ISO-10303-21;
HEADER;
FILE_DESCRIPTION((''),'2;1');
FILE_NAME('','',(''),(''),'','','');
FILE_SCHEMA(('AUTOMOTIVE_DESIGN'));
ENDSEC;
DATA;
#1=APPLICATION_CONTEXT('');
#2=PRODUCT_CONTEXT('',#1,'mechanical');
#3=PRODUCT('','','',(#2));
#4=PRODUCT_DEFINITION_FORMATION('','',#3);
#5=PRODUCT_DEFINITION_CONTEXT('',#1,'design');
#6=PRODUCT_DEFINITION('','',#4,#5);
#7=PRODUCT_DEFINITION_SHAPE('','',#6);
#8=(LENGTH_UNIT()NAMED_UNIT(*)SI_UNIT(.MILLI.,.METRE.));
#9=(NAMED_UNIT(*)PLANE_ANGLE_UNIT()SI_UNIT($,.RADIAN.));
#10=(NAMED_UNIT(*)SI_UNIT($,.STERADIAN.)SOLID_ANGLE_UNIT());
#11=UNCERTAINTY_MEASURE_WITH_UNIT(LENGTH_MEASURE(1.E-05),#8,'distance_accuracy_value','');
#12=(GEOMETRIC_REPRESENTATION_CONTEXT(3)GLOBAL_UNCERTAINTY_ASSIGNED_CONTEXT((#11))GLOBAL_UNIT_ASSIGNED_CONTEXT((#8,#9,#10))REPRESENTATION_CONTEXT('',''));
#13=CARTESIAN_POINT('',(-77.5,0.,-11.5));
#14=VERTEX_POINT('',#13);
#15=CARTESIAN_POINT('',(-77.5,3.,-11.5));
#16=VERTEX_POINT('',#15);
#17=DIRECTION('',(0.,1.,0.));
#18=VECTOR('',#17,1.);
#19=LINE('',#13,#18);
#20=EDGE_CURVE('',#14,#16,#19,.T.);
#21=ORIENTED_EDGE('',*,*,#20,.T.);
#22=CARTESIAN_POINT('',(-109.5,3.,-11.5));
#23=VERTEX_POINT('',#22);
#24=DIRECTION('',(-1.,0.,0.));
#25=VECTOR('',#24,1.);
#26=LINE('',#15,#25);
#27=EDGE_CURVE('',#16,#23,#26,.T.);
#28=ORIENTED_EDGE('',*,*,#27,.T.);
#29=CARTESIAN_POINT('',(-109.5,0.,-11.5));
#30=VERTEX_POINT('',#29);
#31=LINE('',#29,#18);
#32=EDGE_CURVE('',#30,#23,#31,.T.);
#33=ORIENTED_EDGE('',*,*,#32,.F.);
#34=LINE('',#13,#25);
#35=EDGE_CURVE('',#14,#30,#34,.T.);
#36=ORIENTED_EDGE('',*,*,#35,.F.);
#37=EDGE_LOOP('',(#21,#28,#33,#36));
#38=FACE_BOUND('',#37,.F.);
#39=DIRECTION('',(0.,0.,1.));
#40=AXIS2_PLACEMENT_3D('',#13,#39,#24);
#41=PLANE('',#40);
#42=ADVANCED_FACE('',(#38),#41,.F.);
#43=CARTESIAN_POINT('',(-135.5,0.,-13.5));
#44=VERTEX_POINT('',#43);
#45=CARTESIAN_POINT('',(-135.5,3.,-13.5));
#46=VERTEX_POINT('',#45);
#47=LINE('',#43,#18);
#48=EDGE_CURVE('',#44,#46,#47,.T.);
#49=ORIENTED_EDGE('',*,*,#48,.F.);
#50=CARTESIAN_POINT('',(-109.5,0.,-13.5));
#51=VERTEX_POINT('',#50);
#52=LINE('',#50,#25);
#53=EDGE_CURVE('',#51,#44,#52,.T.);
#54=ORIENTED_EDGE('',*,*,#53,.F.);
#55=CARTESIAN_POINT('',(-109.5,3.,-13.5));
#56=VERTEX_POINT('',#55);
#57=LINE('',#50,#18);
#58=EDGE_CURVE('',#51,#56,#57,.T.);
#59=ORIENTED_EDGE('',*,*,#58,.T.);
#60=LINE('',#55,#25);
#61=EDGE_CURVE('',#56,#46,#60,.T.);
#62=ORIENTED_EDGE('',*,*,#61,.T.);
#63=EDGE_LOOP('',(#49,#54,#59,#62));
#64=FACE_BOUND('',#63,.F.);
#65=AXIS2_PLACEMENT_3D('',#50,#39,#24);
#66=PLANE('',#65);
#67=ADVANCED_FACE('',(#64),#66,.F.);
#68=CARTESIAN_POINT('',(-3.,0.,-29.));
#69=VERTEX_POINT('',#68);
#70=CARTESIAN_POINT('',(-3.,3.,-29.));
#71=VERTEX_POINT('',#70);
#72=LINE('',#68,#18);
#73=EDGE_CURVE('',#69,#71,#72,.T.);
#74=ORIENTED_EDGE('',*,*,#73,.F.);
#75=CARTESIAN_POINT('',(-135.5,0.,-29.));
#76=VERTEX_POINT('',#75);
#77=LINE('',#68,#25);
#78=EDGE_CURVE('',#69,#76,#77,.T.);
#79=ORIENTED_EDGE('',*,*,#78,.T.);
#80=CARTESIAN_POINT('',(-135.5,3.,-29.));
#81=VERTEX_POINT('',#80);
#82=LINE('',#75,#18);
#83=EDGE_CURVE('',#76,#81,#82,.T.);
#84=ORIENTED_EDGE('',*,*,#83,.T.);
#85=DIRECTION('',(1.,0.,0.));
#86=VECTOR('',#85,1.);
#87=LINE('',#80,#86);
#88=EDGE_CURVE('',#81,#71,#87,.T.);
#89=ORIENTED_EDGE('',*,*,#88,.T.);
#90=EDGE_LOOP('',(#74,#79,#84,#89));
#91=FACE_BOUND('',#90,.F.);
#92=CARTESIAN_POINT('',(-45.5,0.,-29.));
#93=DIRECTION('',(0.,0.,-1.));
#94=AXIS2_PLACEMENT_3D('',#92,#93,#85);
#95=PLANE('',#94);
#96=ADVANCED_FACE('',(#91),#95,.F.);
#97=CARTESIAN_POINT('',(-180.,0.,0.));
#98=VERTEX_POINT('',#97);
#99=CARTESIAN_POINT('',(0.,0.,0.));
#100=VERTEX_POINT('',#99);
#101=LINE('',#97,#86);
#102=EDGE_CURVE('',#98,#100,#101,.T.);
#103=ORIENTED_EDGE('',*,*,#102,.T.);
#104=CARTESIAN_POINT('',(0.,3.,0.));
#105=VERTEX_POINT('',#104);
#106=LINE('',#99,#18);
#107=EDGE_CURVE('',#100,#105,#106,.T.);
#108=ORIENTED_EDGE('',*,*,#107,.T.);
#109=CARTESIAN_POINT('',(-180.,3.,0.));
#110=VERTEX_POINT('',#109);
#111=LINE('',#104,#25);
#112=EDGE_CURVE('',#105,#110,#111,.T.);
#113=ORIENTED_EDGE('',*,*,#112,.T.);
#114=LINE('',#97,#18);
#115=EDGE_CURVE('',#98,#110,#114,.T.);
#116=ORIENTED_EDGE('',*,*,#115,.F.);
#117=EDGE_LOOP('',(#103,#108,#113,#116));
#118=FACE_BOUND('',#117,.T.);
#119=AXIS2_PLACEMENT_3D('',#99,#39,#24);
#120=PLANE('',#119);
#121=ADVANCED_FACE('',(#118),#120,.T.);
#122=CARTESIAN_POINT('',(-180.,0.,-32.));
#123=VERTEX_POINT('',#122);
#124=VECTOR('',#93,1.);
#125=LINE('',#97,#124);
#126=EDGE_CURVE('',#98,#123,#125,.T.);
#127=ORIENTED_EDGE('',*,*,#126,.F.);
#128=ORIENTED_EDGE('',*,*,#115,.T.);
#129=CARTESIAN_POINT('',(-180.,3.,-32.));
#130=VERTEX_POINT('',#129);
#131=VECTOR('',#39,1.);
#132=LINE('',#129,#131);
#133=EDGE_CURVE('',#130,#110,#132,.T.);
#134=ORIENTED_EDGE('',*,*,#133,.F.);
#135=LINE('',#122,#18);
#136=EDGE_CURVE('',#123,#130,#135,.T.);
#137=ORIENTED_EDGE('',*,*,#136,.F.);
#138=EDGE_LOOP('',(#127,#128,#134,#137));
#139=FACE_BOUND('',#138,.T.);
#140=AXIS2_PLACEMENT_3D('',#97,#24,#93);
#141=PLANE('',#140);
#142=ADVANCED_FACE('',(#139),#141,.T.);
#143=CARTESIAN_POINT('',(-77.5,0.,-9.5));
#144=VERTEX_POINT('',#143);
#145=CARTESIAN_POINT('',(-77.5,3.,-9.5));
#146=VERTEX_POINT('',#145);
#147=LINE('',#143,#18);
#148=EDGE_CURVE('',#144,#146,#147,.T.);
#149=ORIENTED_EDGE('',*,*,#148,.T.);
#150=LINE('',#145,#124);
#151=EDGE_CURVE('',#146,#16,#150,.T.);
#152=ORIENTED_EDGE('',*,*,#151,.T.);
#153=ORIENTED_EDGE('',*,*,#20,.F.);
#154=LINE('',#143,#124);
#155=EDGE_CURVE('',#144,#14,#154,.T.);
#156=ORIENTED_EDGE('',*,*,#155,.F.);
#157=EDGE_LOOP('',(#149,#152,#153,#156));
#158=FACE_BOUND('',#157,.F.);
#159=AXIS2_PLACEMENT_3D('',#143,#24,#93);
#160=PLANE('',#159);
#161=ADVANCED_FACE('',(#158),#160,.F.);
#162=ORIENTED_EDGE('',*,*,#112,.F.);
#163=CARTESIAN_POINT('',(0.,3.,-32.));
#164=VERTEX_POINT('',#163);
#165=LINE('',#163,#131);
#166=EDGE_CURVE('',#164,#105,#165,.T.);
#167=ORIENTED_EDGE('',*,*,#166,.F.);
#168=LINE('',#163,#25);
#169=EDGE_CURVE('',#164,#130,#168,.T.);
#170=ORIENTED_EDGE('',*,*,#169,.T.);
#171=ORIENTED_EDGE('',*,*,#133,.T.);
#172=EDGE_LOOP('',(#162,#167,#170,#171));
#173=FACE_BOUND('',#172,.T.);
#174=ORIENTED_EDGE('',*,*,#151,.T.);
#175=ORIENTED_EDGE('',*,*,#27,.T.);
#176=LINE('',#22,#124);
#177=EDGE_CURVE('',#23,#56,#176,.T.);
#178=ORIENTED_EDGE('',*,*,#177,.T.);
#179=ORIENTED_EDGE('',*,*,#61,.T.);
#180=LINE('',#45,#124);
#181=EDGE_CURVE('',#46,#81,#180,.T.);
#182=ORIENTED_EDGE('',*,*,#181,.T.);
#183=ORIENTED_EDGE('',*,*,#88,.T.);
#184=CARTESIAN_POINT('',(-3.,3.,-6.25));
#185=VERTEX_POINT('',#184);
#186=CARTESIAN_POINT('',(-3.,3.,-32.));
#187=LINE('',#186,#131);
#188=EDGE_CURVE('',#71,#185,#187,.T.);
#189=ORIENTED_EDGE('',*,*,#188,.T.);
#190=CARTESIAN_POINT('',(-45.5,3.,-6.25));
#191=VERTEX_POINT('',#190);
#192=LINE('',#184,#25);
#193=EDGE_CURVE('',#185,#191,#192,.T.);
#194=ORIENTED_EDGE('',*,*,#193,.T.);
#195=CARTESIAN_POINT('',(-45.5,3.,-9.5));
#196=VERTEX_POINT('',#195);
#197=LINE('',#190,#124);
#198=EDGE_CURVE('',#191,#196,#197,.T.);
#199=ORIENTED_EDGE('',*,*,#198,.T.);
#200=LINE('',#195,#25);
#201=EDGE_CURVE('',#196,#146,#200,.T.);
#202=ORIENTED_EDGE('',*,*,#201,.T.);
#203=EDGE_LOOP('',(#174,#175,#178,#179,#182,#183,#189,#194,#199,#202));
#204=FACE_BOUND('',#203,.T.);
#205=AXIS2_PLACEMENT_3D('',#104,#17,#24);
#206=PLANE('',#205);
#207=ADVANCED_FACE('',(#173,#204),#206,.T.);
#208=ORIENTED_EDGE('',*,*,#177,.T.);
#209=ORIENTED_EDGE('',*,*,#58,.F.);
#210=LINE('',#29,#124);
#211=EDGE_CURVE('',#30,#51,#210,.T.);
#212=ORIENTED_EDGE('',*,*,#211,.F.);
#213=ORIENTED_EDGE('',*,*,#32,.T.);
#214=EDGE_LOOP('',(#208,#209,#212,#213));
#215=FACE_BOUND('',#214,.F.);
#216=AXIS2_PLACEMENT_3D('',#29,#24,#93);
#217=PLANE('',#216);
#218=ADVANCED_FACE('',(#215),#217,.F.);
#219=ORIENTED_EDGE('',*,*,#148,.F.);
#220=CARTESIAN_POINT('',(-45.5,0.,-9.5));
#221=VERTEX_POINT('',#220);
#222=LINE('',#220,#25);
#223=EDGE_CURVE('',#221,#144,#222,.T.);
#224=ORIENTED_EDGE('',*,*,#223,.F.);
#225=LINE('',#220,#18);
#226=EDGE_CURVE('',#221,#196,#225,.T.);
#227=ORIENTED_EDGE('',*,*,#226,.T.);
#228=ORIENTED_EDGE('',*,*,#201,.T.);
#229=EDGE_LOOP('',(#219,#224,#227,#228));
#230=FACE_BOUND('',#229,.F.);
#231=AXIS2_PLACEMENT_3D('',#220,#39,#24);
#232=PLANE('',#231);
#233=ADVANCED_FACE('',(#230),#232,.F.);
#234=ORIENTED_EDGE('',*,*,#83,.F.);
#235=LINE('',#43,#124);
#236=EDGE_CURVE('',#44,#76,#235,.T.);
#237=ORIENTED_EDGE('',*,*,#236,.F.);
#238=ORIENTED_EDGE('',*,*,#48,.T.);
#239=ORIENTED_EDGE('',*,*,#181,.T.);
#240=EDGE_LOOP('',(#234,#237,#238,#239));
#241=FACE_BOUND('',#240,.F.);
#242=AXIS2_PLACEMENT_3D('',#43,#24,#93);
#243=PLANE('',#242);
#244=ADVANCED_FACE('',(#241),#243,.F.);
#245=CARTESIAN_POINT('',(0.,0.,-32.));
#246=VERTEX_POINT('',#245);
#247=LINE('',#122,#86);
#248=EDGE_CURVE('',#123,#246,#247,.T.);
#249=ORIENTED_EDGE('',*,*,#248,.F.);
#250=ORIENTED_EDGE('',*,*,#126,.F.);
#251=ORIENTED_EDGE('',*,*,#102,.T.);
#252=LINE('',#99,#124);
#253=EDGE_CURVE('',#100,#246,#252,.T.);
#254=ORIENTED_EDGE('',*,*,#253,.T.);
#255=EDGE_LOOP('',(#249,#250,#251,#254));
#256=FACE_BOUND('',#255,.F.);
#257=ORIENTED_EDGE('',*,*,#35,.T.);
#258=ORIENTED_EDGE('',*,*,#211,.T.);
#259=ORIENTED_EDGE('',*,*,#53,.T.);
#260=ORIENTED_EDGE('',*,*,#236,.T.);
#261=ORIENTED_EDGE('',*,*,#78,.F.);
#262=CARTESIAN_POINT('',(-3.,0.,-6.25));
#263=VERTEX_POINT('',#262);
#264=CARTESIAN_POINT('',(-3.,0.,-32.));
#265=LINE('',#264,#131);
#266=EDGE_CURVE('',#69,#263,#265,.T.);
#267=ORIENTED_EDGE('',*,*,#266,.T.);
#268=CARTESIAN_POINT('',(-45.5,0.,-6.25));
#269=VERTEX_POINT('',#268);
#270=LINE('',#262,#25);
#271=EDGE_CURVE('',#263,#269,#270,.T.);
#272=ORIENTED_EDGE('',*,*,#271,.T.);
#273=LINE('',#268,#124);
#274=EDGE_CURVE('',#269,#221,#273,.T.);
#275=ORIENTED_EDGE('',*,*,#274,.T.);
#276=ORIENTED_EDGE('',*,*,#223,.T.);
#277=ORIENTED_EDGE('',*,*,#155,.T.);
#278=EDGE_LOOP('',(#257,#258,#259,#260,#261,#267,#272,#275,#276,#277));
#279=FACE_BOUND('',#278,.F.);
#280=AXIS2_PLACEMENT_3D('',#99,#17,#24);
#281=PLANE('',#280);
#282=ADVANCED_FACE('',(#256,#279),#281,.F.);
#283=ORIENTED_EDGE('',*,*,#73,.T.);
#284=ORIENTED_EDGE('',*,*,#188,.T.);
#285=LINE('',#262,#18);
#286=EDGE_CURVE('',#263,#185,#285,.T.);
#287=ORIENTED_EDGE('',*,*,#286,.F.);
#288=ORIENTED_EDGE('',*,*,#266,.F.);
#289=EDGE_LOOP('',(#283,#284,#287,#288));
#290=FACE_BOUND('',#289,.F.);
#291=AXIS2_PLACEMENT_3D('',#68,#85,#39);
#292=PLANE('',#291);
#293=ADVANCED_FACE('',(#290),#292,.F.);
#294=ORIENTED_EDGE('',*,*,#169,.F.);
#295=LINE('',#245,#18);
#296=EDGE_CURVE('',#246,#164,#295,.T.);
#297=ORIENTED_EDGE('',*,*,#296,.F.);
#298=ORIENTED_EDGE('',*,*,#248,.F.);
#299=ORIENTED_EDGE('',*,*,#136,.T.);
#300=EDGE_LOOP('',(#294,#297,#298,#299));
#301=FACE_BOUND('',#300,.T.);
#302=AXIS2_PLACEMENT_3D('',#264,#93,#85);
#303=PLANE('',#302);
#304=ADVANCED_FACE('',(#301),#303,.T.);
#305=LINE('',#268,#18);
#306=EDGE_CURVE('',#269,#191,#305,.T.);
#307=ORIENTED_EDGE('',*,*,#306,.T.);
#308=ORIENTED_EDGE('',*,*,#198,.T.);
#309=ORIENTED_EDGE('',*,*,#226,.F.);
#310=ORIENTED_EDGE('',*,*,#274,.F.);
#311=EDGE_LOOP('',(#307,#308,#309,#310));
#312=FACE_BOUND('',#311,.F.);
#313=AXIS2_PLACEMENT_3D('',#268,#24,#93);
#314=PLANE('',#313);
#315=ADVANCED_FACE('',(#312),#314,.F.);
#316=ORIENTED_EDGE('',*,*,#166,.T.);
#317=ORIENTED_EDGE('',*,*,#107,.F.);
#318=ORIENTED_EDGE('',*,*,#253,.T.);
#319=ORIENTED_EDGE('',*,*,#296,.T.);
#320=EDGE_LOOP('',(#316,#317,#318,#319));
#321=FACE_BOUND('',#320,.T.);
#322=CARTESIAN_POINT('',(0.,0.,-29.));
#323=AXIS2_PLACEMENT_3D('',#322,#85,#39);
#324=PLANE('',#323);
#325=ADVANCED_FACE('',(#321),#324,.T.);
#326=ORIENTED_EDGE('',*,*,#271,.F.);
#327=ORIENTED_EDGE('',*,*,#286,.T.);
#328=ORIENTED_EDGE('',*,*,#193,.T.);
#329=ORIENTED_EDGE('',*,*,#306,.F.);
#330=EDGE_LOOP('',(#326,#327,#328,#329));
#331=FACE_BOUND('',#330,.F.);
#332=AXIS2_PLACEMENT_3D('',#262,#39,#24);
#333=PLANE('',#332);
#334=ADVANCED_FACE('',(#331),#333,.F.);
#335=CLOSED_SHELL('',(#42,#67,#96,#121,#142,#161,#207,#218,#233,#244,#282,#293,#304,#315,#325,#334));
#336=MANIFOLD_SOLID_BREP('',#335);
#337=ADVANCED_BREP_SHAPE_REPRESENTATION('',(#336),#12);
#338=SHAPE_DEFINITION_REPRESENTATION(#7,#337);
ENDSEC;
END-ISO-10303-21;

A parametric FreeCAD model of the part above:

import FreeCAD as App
import Part
import Sketcher
from FreeCAD import Vector


def add_polygon(sketch, points):
    """Adds a closed chain of lines whose ends are joined by coincident constraints."""
    first, n = sketch.GeometryCount, len(points)
    for a, b in zip(points, points[1:] + points[:1]):
        sketch.addGeometry(Part.LineSegment(App.Vector(*a, 0), App.Vector(*b, 0)), False)
    for i in range(n):
        sketch.addConstraint(Sketcher.Constraint("Coincident", first + i, 2, first + (i + 1) % n, 1))

doc = App.newDocument("Part")
body = doc.addObject("PartDesign::Body", "Body")

# Sketch on XZ plane
sketch1 = body.newObject("Sketcher::SketchObject", "Sketch")
sketch1.AttachmentSupport = (doc.getObject("XZ_Plane"), [""])
sketch1.MapMode = "FlatFace"
add_polygon(sketch1, [(0, 0), (0, -32), (-180, -32), (-180, 0)])  # lines 0-3
add_polygon(sketch1, [(-3, -29), (-3, -6.2), (-45.5, -6.2), (-45.5, -9.5), (-77.5, -9.5), (-77.5, -11.5), (-109.5, -11.5), (-109.5, -13.5), (-135.5, -13.5), (-135.5, -29)])  # lines 4-13
sketch1.addConstraint([
    Sketcher.Constraint("Vertical", 0),
    Sketcher.Constraint("Horizontal", 1),
    Sketcher.Constraint("Vertical", 2),
    Sketcher.Constraint("Horizontal", 3),
    Sketcher.Constraint("Vertical", 4),
    Sketcher.Constraint("Horizontal", 5),
    Sketcher.Constraint("Vertical", 6),
    Sketcher.Constraint("Horizontal", 7),
    Sketcher.Constraint("Vertical", 8),
    Sketcher.Constraint("Horizontal", 9),
    Sketcher.Constraint("Vertical", 10),
    Sketcher.Constraint("Horizontal", 11),
    Sketcher.Constraint("Vertical", 12),
    Sketcher.Constraint("Horizontal", 13),
    Sketcher.Constraint("Coincident", 3, 2, -1, 1),
    Sketcher.Constraint("Equal", 7, 9),
    Sketcher.Constraint("Equal", 9, 0),
    Sketcher.Constraint("Equal", 8, 10),
    Sketcher.Constraint("DistanceX", 1, 2, 1, 1, 180.0),
    Sketcher.Constraint("DistanceX", 7, 2, 7, 1, 32.0),
    Sketcher.Constraint("DistanceX", 11, 2, 11, 1, 26.0),
    Sketcher.Constraint("DistanceX", 5, 2, 5, 1, 42.5),
    Sketcher.Constraint("DistanceX", 4, 2, -1, 1, 3.0),
    Sketcher.Constraint("DistanceY", 1, 2, 12, 2, 3.0),
    Sketcher.Constraint("DistanceY", 0, 2, 6, 2, 22.5),
    Sketcher.Constraint("DistanceY", 1, 2, 11, 2, 18.5),
    Sketcher.Constraint("DistanceY", 0, 2, 4, 2, 25.75),
])
pad1 = body.newObject("PartDesign::Pad", "Pad")
pad1.Profile = sketch1
pad1.Length = 3
pad1.Reversed = True

doc.recompute()
